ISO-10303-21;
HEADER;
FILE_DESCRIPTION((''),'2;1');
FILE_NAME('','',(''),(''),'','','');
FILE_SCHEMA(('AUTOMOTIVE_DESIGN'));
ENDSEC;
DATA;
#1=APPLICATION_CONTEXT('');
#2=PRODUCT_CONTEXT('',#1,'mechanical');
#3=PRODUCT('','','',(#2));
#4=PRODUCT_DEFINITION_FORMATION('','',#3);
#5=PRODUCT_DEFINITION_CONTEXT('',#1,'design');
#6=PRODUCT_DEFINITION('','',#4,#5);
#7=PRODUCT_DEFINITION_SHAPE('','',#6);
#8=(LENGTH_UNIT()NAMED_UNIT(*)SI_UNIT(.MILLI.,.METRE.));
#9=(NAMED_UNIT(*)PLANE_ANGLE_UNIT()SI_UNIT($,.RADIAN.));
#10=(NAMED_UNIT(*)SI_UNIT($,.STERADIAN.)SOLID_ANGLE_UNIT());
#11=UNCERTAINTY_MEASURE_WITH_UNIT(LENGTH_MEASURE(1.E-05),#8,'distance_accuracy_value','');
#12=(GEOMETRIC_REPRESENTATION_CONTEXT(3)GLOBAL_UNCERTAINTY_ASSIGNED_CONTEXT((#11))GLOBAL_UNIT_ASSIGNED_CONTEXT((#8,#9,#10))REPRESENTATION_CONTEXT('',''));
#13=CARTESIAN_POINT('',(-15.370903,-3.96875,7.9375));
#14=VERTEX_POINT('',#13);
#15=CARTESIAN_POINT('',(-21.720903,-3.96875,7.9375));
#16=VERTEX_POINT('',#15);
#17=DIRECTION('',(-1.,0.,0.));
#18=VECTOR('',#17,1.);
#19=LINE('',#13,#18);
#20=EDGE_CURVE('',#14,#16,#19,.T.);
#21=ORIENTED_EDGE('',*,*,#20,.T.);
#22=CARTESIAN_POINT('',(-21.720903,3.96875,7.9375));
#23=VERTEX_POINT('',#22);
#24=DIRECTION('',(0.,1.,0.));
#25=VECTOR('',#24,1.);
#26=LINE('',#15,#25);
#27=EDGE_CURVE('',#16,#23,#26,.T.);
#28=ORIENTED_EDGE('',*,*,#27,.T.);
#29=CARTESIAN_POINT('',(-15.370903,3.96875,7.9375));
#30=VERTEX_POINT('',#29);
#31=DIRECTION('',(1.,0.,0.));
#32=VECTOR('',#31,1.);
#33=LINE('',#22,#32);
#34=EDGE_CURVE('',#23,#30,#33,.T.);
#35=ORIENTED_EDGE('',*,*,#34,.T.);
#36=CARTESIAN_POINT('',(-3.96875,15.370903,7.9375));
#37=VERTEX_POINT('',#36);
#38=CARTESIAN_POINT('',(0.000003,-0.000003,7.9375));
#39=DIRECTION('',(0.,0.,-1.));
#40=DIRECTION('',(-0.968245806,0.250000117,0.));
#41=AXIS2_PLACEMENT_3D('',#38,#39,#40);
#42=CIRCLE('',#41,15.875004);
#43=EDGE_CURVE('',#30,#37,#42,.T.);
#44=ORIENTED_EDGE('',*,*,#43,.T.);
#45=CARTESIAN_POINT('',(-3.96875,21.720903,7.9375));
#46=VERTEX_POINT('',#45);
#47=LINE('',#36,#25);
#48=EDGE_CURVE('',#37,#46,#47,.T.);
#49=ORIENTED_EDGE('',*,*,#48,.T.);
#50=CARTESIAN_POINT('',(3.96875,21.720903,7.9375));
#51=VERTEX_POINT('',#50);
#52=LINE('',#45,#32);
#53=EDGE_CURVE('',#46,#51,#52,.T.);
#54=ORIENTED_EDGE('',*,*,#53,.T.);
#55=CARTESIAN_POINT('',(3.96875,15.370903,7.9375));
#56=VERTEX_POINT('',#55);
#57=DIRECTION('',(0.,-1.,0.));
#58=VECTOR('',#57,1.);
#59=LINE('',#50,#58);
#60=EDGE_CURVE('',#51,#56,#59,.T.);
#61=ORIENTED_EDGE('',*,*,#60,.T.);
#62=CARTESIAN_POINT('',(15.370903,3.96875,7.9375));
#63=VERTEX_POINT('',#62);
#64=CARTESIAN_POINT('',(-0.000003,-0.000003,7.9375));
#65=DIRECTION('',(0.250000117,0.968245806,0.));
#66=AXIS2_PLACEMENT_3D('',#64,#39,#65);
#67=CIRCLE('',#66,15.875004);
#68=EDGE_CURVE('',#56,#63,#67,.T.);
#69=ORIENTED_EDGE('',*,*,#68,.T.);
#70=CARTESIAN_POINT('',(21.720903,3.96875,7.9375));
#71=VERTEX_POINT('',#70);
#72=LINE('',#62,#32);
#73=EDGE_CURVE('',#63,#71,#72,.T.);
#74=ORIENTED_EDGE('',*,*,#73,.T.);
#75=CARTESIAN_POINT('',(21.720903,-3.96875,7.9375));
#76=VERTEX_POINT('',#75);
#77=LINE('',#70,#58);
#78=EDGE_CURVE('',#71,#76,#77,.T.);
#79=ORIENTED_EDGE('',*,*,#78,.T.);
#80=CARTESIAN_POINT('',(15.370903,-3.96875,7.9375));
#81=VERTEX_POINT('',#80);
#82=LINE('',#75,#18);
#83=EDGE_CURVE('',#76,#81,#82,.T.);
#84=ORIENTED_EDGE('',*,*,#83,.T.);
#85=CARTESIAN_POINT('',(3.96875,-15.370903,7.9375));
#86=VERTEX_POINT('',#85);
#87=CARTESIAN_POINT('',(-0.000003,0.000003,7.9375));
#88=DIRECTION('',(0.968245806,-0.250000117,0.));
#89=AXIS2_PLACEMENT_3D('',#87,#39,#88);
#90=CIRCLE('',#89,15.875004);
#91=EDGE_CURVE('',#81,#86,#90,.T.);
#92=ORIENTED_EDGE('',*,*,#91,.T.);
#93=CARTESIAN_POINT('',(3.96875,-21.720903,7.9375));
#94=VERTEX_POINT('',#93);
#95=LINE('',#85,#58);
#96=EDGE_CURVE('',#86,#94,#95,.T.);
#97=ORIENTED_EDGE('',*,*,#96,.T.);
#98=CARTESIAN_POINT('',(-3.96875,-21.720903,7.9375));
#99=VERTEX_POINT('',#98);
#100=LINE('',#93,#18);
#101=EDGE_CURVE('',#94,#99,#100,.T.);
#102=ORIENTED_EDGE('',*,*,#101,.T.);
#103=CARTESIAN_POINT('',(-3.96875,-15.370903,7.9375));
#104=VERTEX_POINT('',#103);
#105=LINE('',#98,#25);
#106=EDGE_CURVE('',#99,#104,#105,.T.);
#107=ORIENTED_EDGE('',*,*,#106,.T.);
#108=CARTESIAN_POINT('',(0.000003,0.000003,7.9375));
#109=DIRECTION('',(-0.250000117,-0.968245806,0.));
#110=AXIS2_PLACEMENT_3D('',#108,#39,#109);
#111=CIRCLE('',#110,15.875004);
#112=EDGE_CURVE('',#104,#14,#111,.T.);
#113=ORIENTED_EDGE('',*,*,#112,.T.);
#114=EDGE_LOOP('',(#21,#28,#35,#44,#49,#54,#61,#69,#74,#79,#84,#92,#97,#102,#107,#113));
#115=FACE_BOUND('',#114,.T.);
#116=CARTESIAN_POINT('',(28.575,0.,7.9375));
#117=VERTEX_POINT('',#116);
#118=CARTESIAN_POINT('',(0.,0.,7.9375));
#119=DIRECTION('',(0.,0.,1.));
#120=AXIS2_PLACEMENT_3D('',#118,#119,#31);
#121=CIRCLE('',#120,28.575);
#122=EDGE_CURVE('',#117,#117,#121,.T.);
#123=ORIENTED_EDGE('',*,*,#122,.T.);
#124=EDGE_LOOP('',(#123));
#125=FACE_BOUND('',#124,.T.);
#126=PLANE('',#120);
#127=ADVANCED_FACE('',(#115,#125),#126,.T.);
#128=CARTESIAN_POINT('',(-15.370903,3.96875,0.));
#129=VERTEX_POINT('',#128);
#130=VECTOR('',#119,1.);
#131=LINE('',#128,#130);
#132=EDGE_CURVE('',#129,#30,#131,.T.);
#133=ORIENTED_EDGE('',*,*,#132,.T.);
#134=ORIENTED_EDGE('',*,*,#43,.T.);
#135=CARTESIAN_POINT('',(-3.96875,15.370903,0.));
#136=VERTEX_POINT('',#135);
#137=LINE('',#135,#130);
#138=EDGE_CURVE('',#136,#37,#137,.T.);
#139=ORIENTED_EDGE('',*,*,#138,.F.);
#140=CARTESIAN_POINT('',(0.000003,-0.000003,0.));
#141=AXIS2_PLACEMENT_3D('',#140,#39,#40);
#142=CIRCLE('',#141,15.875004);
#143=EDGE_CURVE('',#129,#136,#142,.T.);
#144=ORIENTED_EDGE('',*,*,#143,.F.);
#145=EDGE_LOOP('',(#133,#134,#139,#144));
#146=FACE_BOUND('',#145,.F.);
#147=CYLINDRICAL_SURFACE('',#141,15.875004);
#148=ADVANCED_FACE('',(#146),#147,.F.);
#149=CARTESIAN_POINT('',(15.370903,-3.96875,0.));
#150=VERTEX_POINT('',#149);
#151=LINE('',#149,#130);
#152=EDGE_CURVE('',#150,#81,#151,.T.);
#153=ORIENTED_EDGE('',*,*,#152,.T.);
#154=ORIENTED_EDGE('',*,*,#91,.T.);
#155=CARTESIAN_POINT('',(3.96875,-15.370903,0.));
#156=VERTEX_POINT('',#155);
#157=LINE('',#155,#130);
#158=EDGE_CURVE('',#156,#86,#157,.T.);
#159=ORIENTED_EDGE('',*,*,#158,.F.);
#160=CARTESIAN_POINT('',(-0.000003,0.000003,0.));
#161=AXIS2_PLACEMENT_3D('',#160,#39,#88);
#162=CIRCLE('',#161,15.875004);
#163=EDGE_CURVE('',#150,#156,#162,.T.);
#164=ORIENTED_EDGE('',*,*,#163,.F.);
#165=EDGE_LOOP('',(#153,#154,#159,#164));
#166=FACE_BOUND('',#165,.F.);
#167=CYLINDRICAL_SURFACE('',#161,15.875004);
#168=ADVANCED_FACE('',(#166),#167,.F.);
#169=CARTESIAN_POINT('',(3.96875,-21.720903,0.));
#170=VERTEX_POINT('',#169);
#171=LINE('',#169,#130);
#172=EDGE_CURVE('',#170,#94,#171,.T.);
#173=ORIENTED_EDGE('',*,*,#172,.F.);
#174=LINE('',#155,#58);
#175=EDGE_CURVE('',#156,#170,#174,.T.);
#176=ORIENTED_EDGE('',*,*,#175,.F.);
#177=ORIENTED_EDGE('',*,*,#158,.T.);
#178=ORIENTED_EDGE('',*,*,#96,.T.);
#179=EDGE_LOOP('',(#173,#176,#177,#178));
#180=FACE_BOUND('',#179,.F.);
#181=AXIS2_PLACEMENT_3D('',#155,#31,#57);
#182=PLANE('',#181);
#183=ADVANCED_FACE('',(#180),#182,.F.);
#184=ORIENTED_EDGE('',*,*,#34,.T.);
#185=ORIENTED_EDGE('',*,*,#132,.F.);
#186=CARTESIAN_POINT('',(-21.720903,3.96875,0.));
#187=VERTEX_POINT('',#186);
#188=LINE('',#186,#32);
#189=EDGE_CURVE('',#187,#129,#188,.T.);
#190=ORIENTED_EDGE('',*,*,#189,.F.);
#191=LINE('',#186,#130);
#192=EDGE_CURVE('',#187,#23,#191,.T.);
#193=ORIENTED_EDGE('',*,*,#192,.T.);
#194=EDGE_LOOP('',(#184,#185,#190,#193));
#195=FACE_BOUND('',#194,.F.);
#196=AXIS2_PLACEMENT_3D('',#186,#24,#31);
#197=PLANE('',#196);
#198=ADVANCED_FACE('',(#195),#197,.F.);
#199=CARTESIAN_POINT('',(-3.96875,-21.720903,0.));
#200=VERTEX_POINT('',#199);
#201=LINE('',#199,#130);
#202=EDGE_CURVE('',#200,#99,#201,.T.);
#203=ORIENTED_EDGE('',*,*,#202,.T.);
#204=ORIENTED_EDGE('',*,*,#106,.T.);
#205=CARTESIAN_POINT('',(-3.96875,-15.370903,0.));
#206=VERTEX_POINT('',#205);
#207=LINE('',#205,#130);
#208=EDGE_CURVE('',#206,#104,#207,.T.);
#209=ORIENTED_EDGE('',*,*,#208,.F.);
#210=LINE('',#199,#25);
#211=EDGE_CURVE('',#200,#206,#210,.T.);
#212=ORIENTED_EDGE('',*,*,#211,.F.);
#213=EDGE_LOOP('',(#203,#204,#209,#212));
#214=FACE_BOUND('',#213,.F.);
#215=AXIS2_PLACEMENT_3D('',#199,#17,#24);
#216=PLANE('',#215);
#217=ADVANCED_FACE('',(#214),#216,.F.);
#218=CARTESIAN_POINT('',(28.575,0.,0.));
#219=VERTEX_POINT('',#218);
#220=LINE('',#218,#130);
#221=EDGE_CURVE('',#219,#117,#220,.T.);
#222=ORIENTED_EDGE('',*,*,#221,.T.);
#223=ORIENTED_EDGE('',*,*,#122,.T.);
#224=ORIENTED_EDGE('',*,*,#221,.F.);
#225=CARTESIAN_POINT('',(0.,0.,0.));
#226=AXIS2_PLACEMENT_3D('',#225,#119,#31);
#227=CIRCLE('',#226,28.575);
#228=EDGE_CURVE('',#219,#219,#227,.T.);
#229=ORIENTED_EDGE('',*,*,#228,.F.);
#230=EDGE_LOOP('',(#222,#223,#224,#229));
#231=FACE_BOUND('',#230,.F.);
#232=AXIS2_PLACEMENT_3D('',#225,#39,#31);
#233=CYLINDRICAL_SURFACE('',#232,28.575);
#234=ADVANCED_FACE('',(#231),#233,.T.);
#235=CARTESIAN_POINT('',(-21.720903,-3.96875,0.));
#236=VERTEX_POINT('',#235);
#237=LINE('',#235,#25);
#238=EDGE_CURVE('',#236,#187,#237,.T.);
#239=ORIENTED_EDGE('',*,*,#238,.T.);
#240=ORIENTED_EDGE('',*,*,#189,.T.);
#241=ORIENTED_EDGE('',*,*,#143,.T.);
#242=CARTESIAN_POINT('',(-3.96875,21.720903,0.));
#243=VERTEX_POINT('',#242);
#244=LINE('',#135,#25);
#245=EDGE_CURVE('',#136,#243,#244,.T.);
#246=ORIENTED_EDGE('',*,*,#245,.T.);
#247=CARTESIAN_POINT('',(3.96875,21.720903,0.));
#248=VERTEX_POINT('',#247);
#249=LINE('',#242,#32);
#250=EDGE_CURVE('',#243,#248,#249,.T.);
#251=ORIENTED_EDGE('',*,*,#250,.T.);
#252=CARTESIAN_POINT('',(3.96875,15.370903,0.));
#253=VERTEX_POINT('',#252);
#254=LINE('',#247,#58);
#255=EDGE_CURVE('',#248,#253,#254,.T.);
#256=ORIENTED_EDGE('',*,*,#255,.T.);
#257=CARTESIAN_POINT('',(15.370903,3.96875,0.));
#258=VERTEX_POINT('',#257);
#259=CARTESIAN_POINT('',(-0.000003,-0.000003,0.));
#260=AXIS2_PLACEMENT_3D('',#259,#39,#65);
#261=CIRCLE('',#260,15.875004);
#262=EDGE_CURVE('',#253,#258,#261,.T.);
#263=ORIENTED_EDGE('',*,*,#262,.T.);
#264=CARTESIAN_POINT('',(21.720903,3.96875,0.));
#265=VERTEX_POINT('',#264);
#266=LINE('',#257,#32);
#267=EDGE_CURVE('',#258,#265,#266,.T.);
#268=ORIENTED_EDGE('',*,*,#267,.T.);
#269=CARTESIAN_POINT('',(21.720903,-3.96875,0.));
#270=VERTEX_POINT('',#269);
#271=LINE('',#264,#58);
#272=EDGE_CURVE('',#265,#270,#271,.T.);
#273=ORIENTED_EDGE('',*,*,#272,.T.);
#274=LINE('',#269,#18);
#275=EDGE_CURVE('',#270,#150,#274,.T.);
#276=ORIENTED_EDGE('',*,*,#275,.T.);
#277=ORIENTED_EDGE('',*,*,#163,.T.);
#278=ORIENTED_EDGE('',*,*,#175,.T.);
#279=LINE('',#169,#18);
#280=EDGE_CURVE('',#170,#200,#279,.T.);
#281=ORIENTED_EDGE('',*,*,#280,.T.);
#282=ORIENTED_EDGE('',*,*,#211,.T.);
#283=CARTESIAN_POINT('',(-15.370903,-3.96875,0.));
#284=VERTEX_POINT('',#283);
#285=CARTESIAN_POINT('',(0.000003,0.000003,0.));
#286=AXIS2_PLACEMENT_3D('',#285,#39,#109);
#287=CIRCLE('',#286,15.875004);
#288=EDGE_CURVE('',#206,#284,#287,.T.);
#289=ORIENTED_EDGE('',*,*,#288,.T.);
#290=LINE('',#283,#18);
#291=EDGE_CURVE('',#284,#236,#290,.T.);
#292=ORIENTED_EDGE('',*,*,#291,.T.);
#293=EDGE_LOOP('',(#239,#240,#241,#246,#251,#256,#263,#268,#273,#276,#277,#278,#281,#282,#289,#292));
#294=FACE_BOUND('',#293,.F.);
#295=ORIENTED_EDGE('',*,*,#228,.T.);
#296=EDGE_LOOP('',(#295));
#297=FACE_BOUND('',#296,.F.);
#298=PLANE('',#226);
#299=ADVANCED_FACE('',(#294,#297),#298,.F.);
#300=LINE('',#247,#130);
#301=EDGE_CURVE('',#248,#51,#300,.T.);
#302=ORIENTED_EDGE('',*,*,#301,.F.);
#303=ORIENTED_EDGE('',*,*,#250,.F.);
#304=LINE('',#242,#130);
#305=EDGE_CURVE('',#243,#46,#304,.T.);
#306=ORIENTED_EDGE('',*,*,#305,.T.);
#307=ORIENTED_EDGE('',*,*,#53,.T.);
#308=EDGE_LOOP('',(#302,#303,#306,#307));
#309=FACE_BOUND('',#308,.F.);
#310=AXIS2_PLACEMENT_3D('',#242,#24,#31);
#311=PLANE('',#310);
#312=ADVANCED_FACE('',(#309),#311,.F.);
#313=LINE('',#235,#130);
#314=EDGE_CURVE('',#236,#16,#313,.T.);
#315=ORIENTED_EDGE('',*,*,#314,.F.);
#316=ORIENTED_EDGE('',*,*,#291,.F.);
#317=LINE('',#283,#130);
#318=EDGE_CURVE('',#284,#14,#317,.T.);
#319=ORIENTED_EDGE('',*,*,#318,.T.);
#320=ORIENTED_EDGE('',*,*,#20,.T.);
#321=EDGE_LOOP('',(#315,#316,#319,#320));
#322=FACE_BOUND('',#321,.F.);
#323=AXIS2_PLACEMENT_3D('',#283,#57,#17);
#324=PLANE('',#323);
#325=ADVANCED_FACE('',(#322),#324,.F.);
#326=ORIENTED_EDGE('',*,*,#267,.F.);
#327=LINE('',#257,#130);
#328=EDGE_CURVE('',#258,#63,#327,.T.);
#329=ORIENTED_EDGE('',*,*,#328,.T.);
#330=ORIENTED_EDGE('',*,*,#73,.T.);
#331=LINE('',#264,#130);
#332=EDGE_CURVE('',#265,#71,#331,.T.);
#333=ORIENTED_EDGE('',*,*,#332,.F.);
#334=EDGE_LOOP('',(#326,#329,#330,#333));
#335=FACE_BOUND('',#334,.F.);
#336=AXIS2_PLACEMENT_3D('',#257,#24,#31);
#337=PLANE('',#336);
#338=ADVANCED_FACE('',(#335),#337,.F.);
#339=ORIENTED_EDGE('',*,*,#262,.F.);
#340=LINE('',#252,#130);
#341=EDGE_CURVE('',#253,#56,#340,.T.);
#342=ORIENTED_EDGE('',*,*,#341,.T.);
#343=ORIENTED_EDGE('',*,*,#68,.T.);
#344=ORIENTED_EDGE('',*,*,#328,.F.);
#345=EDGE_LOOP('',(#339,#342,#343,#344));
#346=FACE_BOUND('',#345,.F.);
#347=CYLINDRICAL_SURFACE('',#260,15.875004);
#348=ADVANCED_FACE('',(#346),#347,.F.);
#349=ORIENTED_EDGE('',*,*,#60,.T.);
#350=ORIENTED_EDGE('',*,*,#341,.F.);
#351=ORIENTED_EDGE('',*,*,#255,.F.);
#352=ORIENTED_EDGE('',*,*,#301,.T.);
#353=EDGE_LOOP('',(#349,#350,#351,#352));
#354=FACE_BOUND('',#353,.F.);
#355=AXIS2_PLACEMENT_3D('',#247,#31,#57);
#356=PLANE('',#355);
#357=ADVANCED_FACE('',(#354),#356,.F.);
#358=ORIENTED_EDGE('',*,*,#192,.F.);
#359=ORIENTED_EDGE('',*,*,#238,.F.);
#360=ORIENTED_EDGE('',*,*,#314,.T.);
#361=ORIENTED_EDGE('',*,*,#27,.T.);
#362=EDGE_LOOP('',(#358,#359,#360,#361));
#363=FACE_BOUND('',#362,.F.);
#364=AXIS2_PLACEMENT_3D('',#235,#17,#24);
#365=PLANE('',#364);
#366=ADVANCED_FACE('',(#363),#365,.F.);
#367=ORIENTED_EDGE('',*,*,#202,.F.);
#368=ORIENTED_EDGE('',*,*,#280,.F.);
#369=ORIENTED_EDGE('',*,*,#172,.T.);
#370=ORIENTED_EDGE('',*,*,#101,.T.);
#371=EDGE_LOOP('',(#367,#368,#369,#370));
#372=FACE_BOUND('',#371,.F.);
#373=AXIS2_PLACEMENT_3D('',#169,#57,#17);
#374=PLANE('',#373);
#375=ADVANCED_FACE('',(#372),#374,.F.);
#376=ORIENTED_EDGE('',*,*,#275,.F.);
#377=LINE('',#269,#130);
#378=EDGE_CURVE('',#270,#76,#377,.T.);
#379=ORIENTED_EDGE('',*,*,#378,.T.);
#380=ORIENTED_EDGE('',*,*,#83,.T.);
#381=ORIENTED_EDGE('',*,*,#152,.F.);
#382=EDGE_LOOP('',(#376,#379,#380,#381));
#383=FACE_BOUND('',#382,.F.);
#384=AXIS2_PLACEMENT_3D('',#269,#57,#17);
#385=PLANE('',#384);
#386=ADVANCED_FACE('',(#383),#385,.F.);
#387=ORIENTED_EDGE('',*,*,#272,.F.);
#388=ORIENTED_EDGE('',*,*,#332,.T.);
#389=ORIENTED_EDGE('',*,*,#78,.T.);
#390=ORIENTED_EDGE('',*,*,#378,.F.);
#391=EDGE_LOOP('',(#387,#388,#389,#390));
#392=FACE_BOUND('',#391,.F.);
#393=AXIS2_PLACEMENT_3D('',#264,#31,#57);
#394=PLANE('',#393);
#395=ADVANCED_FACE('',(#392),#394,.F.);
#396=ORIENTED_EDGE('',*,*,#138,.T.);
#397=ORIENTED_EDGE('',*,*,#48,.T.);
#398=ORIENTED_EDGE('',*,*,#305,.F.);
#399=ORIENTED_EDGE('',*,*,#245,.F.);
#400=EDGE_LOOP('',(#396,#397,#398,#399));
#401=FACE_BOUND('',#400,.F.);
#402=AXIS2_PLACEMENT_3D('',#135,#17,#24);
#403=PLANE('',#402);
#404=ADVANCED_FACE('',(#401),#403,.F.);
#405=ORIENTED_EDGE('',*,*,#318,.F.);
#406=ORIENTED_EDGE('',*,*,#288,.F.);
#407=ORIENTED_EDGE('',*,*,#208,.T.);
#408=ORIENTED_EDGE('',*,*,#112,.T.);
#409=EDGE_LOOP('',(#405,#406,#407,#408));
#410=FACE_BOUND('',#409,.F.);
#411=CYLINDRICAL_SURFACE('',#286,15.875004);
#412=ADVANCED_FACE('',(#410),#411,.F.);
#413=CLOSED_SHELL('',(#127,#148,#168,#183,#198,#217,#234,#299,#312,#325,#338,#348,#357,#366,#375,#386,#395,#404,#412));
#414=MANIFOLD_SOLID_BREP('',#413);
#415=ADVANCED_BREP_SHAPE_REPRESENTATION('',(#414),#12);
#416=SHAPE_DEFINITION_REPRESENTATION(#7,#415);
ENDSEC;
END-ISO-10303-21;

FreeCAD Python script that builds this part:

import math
import FreeCAD as App
import Part
import Sketcher
Q = App.Units.Quantity

doc = App.newDocument("Part")
params = doc.addObject("Spreadsheet::Sheet", "Params")
for row, (alias, value) in enumerate([
    ("sketch1_diameter", "2.25 in"),
    ("sketch1_radius", "0.6250001 in"),
    ("sketch1_width", "0.25 in"),
    ("sketch1_width2", "0.3125 in"),
    ("pad1_length", "0.3125 in"),
], start=1):
    params.set(f"A{row}", alias)
    params.set(f"B{row}", "=" + value)
    params.setAlias(f"B{row}", alias)

body = doc.addObject("PartDesign::Body", "Body")

# Sketch on XY plane
sketch1 = doc.addObject("Sketcher::SketchObject", "Sketch")
body.addObject(sketch1)
sketch1.AttachmentSupport = (doc.XY_Plane, [""])
sketch1.MapMode = "FlatFace"
sketch1.addGeometry([
    Part.Circle(App.Vector(0, 0, 0), App.Vector(0, 0, 1), 29),  # 0
    Part.LineSegment(App.Vector(4, 22, 0), App.Vector(4, 15, 0)),  # 1
    Part.ArcOfCircle(Part.Circle(App.Vector(0, 0, 0), App.Vector(0, 0, 1), 16), math.radians(14), math.radians(76)),  # 2
    Part.LineSegment(App.Vector(15, 4, 0), App.Vector(22, 4, 0)),  # 3
    Part.LineSegment(App.Vector(22, 4, 0), App.Vector(22, -4, 0)),  # 4
    Part.LineSegment(App.Vector(22, -4, 0), App.Vector(15, -4, 0)),  # 5
    Part.ArcOfCircle(Part.Circle(App.Vector(0, 0, 0), App.Vector(0, 0, 1), 16), math.radians(-76), math.radians(-14)),  # 6
    Part.LineSegment(App.Vector(4, -15, 0), App.Vector(4, -22, 0)),  # 7
    Part.LineSegment(App.Vector(4, -22, 0), App.Vector(-4, -22, 0)),  # 8
    Part.LineSegment(App.Vector(-4, -22, 0), App.Vector(-4, -15, 0)),  # 9
    Part.ArcOfCircle(Part.Circle(App.Vector(0, 0, 0), App.Vector(0, 0, 1), 16), math.radians(-166), math.radians(-104)),  # 10
    Part.LineSegment(App.Vector(-15, -4, 0), App.Vector(-22, -4, 0)),  # 11
    Part.LineSegment(App.Vector(-22, -4, 0), App.Vector(-22, 4, 0)),  # 12
    Part.LineSegment(App.Vector(-22, 4, 0), App.Vector(-15, 4, 0)),  # 13
    Part.ArcOfCircle(Part.Circle(App.Vector(0, 0, 0), App.Vector(0, 0, 1), 16), math.radians(104), math.radians(166)),  # 14
    Part.LineSegment(App.Vector(-4, 15, 0), App.Vector(-4, 22, 0)),  # 15
    Part.LineSegment(App.Vector(-4, 22, 0), App.Vector(4, 22, 0)),  # 16
], False)
sketch1.addConstraint([
    Sketcher.Constraint("Coincident", 1, 2, 2, 2),
    Sketcher.Constraint("Coincident", 2, 1, 3, 1),
    Sketcher.Constraint("Coincident", 3, 2, 4, 1),
    Sketcher.Constraint("Coincident", 4, 2, 5, 1),
    Sketcher.Constraint("Coincident", 5, 2, 6, 2),
    Sketcher.Constraint("Coincident", 6, 1, 7, 1),
    Sketcher.Constraint("Coincident", 7, 2, 8, 1),
    Sketcher.Constraint("Coincident", 8, 2, 9, 1),
    Sketcher.Constraint("Coincident", 9, 2, 10, 2),
    Sketcher.Constraint("Coincident", 10, 1, 11, 1),
    Sketcher.Constraint("Coincident", 11, 2, 12, 1),
    Sketcher.Constraint("Coincident", 12, 2, 13, 1),
    Sketcher.Constraint("Coincident", 13, 2, 14, 2),
    Sketcher.Constraint("Coincident", 14, 1, 15, 1),
    Sketcher.Constraint("Coincident", 15, 2, 16, 1),
    Sketcher.Constraint("Coincident", 16, 2, 1, 1),
    Sketcher.Constraint("Vertical", 1),
    Sketcher.Constraint("Horizontal", 3),
    Sketcher.Constraint("Vertical", 4),
    Sketcher.Constraint("Horizontal", 5),
    Sketcher.Constraint("Vertical", 7),
    Sketcher.Constraint("Horizontal", 8),
    Sketcher.Constraint("Vertical", 9),
    Sketcher.Constraint("Horizontal", 11),
    Sketcher.Constraint("Vertical", 12),
    Sketcher.Constraint("Horizontal", 13),
    Sketcher.Constraint("Vertical", 15),
    Sketcher.Constraint("Horizontal", 16),
    Sketcher.Constraint("Coincident", 0, 3, -1, 1),
    Sketcher.Constraint("Coincident", 2, 3, -1, 1),
    Sketcher.Constraint("Coincident", 6, 3, -1, 1),
    Sketcher.Constraint("Coincident", 10, 3, -1, 1),
    Sketcher.Constraint("Coincident", 14, 3, -1, 1),
    Sketcher.Constraint("Equal", 2, 6),
    Sketcher.Constraint("Equal", 6, 10),
    Sketcher.Constraint("Equal", 10, 14),
    Sketcher.Constraint("Symmetric", 3, 2, 11, 2, -1, 1),
    Sketcher.Constraint("Symmetric", 7, 2, 15, 2, -1, 1),
    Sketcher.Constraint("Horizontal", 6, 1, 9, 2),
    Sketcher.Constraint("Horizontal", 5, 2, 10, 1),
    Sketcher.Constraint("Horizontal", 3, 2, 12, 2),
    Sketcher.Constraint("Horizontal", 1, 2, 14, 1),
    Sketcher.Constraint("Equal", 13, 1),
    Sketcher.Constraint("Equal", 16, 4),
    Sketcher.Constraint("Diameter", 0, Q("2.25 in")),
    Sketcher.Constraint("Radius", 2, Q("0.6250001 in")),
    Sketcher.Constraint("DistanceX", 3, 1, 3, 2, Q("0.25 in")),
    Sketcher.Constraint("DistanceX", 8, 2, 8, 1, Q("0.3125 in")),
])
sketch1.setExpression("Constraints[44]", "Params.sketch1_diameter")
sketch1.setExpression("Constraints[45]", "Params.sketch1_radius")
sketch1.setExpression("Constraints[46]", "Params.sketch1_width")
sketch1.setExpression("Constraints[47]", "Params.sketch1_width2")
pad1 = doc.addObject("PartDesign::Pad", "Pad")
body.addObject(pad1)
pad1.Profile = sketch1
pad1.setExpression("Length", "Params.pad1_length")

doc.recompute()
